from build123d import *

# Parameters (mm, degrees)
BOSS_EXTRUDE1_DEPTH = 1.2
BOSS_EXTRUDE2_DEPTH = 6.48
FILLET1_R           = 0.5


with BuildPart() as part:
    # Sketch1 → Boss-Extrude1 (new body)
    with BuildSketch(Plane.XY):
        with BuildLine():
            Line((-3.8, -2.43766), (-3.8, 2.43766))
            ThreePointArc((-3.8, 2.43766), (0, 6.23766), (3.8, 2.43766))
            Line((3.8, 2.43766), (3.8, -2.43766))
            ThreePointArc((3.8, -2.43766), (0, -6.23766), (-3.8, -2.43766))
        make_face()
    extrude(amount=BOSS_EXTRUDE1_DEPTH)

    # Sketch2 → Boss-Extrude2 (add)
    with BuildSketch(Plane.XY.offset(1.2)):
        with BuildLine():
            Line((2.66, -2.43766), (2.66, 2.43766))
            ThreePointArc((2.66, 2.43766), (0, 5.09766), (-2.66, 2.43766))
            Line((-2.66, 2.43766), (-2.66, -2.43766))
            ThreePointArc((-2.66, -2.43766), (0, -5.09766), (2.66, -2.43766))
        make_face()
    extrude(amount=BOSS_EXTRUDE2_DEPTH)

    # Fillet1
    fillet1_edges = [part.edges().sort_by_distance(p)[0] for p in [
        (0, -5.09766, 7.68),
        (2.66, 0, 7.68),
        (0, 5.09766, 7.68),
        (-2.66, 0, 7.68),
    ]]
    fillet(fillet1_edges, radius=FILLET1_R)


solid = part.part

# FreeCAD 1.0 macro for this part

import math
import FreeCAD as App
import Part
import Sketcher
from FreeCAD import Vector
Q = App.Units.Quantity


def edges_at(feature, points):
    """Names of the edges that pass closest to the given points."""
    edges = feature.Shape.Edges
    near = lambda p: min(range(len(edges)), key=lambda i: edges[i].distToShape(Part.Vertex(*p))[0])
    return sorted({f"Edge{near(p) + 1}" for p in points})

doc = App.newDocument("Part")
body = doc.addObject("PartDesign::Body", "Body")

# Sketch on XY plane
sketch1 = doc.addObject("Sketcher::SketchObject", "Sketch")
body.addObject(sketch1)
sketch1.AttachmentSupport = (doc.XY_Plane, [""])
sketch1.MapMode = "FlatFace"
sketch1.addGeometry([
    Part.LineSegment(Vector(-3.8, 2.43766, 0), Vector(-3.8, -2.43766, 0)),
    Part.ArcOfCircle(Part.Circle(Vector(0, -2.43766, 0), Vector(0, 0, 1), 3.8), math.radians(180), math.radians(360)),
    Part.LineSegment(Vector(3.8, -2.43766, 0), Vector(3.8, 2.43766, 0)),
    Part.ArcOfCircle(Part.Circle(Vector(0, 2.43766, 0), Vector(0, 0, 1), 3.8), math.radians(0), math.radians(180)),
], False)
sketch1.addConstraint([
    Sketcher.Constraint("Tangent", 0, 2, 1, 1),
    Sketcher.Constraint("Tangent", 1, 2, 2, 1),
    Sketcher.Constraint("Tangent", 2, 2, 3, 1),
    Sketcher.Constraint("Tangent", 3, 2, 0, 1),
    Sketcher.Constraint("Vertical", 0),
    Sketcher.Constraint("Vertical", 2),
    Sketcher.Constraint("Symmetric", 1, 3, 3, 3, -1, 1),
    Sketcher.Constraint("Radius", 1, Q("3.8 mm")),
    Sketcher.Constraint("DistanceY", 0, 2, 0, 1, Q("4.87532 mm")),
])
pad1 = doc.addObject("PartDesign::Pad", "Pad")
body.addObject(pad1)
pad1.Profile = sketch1
pad1.Length = 1.2

# Sketch on XY plane
sketch2 = doc.addObject("Sketcher::SketchObject", "Sketch001")
body.addObject(sketch2)
sketch2.AttachmentSupport = (doc.XY_Plane, [""])
sketch2.MapMode = "FlatFace"
sketch2.AttachmentOffset = App.Placement(Vector(0, 0, 1.2), App.Rotation())
sketch2.addGeometry([
    Part.LineSegment(Vector(2.66, -2.43766, 0), Vector(2.66, 2.43766, 0)),
    Part.ArcOfCircle(Part.Circle(Vector(0, 2.43766, 0), Vector(0, 0, 1), 2.66), math.radians(0), math.radians(180)),
    Part.LineSegment(Vector(-2.66, 2.43766, 0), Vector(-2.66, -2.43766, 0)),
    Part.ArcOfCircle(Part.Circle(Vector(0, -2.43766, 0), Vector(0, 0, 1), 2.66), math.radians(180), math.radians(360)),
], False)
sketch2.addConstraint([
    Sketcher.Constraint("Tangent", 0, 2, 1, 1),
    Sketcher.Constraint("Tangent", 1, 2, 2, 1),
    Sketcher.Constraint("Tangent", 2, 2, 3, 1),
    Sketcher.Constraint("Tangent", 3, 2, 0, 1),
    Sketcher.Constraint("Vertical", 0),
    Sketcher.Constraint("Vertical", 2),
    Sketcher.Constraint("Symmetric", 1, 3, 3, 3, -1, 1),
    Sketcher.Constraint("Radius", 1, Q("2.66 mm")),
    Sketcher.Constraint("DistanceY", 0, 1, 0, 2, Q("4.87532 mm")),
])
pad2 = doc.addObject("PartDesign::Pad", "Pad001")
body.addObject(pad2)
pad2.Profile = sketch2
pad2.Length = 6.48
doc.recompute()

fillet = doc.addObject("PartDesign::Fillet", "Fillet")
body.addObject(fillet)
fillet.Base = (pad2, edges_at(pad2, [
    (0, -5.098, 7.68),
    (2.66, 0, 7.68),
    (0, 5.098, 7.68),
    (-2.66, 0, 7.68),
]))
fillet.Radius = 0.5

doc.recompute()
